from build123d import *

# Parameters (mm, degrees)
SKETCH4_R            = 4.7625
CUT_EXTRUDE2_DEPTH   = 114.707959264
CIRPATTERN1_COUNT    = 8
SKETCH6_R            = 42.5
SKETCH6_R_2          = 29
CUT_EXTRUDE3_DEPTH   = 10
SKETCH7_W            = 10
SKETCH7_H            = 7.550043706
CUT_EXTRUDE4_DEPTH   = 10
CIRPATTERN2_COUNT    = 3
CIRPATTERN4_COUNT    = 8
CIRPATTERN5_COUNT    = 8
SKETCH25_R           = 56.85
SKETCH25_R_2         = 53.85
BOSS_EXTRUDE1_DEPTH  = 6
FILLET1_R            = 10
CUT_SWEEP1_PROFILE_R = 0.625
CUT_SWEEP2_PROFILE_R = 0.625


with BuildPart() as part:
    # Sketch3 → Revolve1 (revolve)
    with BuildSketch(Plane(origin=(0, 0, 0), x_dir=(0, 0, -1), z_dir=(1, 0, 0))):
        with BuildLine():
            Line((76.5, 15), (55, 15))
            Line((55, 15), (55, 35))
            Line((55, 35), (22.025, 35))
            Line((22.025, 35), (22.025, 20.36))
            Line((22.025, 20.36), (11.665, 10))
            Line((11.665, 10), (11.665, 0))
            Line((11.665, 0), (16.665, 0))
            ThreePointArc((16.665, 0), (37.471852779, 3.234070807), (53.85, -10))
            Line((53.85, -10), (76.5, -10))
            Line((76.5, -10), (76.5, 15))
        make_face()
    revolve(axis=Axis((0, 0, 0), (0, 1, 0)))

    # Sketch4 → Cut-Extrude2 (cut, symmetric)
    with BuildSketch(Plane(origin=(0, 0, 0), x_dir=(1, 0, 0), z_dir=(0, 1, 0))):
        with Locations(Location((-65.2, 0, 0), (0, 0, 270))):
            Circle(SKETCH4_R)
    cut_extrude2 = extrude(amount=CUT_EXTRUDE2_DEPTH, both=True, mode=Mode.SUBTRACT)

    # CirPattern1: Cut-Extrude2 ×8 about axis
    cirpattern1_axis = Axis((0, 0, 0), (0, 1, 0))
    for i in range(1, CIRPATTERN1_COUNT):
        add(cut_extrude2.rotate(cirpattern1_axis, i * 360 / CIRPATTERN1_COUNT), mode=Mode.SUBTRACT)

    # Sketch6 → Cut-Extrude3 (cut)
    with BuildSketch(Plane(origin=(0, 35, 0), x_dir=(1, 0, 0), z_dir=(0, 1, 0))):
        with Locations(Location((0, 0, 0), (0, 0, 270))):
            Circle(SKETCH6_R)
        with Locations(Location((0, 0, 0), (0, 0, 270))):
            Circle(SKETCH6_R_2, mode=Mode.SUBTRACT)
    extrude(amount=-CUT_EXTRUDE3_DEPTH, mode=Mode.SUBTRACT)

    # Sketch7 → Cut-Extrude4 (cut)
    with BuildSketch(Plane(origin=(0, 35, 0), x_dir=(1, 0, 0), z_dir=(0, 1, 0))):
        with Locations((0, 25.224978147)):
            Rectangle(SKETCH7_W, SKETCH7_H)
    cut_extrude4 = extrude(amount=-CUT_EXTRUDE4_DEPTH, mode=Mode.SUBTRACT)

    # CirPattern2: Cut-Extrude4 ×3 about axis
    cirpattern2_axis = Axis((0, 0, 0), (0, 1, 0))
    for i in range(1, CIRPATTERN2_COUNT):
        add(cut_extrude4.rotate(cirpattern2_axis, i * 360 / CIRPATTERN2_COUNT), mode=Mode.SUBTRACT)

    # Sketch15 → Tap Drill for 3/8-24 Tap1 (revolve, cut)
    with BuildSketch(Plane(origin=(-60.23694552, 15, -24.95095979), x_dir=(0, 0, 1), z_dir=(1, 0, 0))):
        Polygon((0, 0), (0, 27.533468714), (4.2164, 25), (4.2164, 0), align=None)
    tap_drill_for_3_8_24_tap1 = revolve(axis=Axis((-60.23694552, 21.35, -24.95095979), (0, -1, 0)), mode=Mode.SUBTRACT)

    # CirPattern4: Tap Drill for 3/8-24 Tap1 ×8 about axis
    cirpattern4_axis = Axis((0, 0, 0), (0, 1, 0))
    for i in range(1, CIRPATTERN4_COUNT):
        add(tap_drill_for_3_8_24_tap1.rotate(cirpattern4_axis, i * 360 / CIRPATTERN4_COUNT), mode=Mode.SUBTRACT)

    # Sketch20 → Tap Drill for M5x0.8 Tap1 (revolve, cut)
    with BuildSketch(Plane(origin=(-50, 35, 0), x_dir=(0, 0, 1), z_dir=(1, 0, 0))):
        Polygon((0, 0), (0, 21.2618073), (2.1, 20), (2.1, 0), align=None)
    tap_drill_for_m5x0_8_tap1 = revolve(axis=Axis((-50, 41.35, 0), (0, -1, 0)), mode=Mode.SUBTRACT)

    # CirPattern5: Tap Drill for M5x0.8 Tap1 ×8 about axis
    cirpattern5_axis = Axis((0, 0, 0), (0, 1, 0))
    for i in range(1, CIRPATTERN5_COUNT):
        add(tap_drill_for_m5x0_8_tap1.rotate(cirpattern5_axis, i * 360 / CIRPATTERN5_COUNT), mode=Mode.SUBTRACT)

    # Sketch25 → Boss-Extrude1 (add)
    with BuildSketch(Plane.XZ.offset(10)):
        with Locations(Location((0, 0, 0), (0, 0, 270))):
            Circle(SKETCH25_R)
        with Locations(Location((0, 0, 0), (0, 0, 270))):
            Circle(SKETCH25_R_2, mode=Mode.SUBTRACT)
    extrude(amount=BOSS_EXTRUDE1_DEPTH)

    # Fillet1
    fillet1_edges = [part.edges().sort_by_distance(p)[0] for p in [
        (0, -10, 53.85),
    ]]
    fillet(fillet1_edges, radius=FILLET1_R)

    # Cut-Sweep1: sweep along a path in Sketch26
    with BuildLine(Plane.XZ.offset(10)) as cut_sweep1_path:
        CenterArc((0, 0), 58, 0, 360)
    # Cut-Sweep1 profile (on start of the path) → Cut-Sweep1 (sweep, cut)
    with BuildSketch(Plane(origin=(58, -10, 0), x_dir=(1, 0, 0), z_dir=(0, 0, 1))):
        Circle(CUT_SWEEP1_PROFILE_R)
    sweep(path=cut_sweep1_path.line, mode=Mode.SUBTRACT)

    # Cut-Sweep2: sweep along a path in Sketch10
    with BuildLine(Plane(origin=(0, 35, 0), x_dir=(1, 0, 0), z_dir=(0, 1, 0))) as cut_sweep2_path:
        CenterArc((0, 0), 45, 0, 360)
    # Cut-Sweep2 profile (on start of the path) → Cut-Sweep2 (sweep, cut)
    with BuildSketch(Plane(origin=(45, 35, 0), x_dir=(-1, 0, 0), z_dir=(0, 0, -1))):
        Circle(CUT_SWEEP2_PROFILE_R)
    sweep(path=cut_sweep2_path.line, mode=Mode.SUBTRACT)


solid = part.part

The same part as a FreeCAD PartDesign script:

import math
import FreeCAD as App
import Part
import Sketcher
from FreeCAD import Vector
Q = App.Units.Quantity


def edges_at(feature, points):
    """Names of the edges that pass closest to the given points."""
    edges = feature.Shape.Edges
    near = lambda p: min(range(len(edges)), key=lambda i: edges[i].distToShape(Part.Vertex(*p))[0])
    return sorted({f"Edge{near(p) + 1}" for p in points})


def add_polygon(sketch, points):
    """Adds a closed chain of lines whose ends are joined by coincident constraints."""
    first, n = sketch.GeometryCount, len(points)
    for a, b in zip(points, points[1:] + points[:1]):
        sketch.addGeometry(Part.LineSegment(App.Vector(*a, 0), App.Vector(*b, 0)), False)
    for i in range(n):
        sketch.addConstraint(Sketcher.Constraint("Coincident", first + i, 2, first + (i + 1) % n, 1))

doc = App.newDocument("Part")
params = doc.addObject("Spreadsheet::Sheet", "Params")
for row, (alias, value) in enumerate([
    ("sketch1_radius", "26 mm"),
    ("sketch1_width", "20 mm"),
    ("sketch1_width2", "10 mm"),
    ("sketch1_width3", "25 mm"),
    ("sketch1_height", "5 mm"),
    ("revolution_angle", "360 deg"),
    ("pocket1_length", "229.415919 mm"),
    ("sketch3_diameter", "85 mm"),
    ("sketch3_diameter2", "58 mm"),
    ("pocket2_length", "10 mm"),
    ("sketch4_width", "10 mm"),
    ("pocket3_length", "10 mm"),
    ("sketch5_width", "25 mm"),
    ("groove_angle", "360 deg"),
    ("sketch6_width", "20 mm"),
    ("sketch6_height", "2.1 mm"),
    ("groove2_angle", "360 deg"),
    ("sketch7_diameter", "113.7 mm"),
    ("sketch7_diameter2", "107.7 mm"),
    ("pad1_length", "6 mm"),
    ("fillet_radius", "10 mm"),
    ("sketch8_diameter", "1.25 mm"),
    ("sketch9_diameter", "116 mm"),
    ("sketch10_diameter", "1.25 mm"),
    ("sketch11_diameter", "90 mm"),
], start=1):
    params.set(f"A{row}", alias)
    params.set(f"B{row}", "=" + value)
    params.setAlias(f"B{row}", alias)

body = doc.addObject("PartDesign::Body", "Body")

sketch1 = body.newObject("Sketcher::SketchObject", "Sketch")
sketch1.AttachmentSupport = (doc.getObject("YZ_Plane"), [""])
sketch1.MapMode = "FlatFace"
sketch1.addGeometry([
    Part.LineSegment(Vector(15, -76, 0), Vector(15, -55, 0)),
    Part.LineSegment(Vector(15, -55, 0), Vector(35, -55, 0)),
    Part.LineSegment(Vector(35, -55, 0), Vector(35, -22, 0)),
    Part.LineSegment(Vector(35, -22, 0), Vector(20, -22, 0)),
    Part.LineSegment(Vector(20, -22, 0), Vector(10, -12, 0)),
    Part.LineSegment(Vector(10, -12, 0), Vector(0, -12, 0)),
    Part.LineSegment(Vector(0, -12, 0), Vector(0, -17, 0)),
    Part.ArcOfCircle(Part.Circle(Vector(-22, -31, 0), Vector(0, 0, 1), 26), math.radians(-63), math.radians(33)),
    Part.LineSegment(Vector(-10, -54, 0), Vector(-10, -76, 0)),
    Part.LineSegment(Vector(-10, -76, 0), Vector(15, -76, 0)),
], False)
sketch1.addConstraint([
    Sketcher.Constraint("Coincident", 0, 2, 1, 1),
    Sketcher.Constraint("Coincident", 1, 2, 2, 1),
    Sketcher.Constraint("Coincident", 2, 2, 3, 1),
    Sketcher.Constraint("Coincident", 3, 2, 4, 1),
    Sketcher.Constraint("Coincident", 4, 2, 5, 1),
    Sketcher.Constraint("Coincident", 5, 2, 6, 1),
    Sketcher.Constraint("Coincident", 6, 2, 7, 2),
    Sketcher.Constraint("Coincident", 7, 1, 8, 1),
    Sketcher.Constraint("Coincident", 8, 2, 9, 1),
    Sketcher.Constraint("Coincident", 9, 2, 0, 1),
    Sketcher.Constraint("Vertical", 0),
    Sketcher.Constraint("Horizontal", 1),
    Sketcher.Constraint("Vertical", 2),
    Sketcher.Constraint("Horizontal", 3),
    Sketcher.Constraint("Horizontal", 5),
    Sketcher.Constraint("Vertical", 6),
    Sketcher.Constraint("Vertical", 8),
    Sketcher.Constraint("Horizontal", 9),
    Sketcher.Constraint("PointOnObject", 5, 2, -2),
    Sketcher.Constraint("Radius", 7, 26.0),
    Sketcher.Constraint("DistanceX", 1, 1, 1, 2, 20.0),
    Sketcher.Constraint("DistanceX", 5, 2, 5, 1, 10.0),
    Sketcher.Constraint("DistanceX", 9, 1, 9, 2, 25.0),
    Sketcher.Constraint("DistanceY", 6, 2, 6, 1, 5.0),
    Sketcher.Constraint("Angle", 4, Q("135 deg")),
    Sketcher.Constraint("DistanceY", 0, 1, 0, 2, 21.5),
    Sketcher.Constraint("DistanceX", -1, 1, 0, 2, 15.0),
    Sketcher.Constraint("DistanceY", 0, 2, -1, 1, 55.0),
    Sketcher.Constraint("DistanceX", 3, 2, 3, 1, 14.64),
    Sketcher.Constraint("DistanceY", 8, 2, 8, 1, 22.65),
    Sketcher.Constraint("DistanceY", 2, 1, 2, 2, 32.975),
])
sketch1.setExpression("Constraints[19]", "Params.sketch1_radius")
sketch1.setExpression("Constraints[20]", "Params.sketch1_width")
sketch1.setExpression("Constraints[21]", "Params.sketch1_width2")
sketch1.setExpression("Constraints[22]", "Params.sketch1_width3")
sketch1.setExpression("Constraints[23]", "Params.sketch1_height")
revolution = body.newObject("PartDesign::Revolution", "Revolution")
revolution.Profile = sketch1
revolution.ReferenceAxis = (sketch1, ["H_Axis"])
revolution.setExpression("Angle", "Params.revolution_angle")

sketch2 = body.newObject("Sketcher::SketchObject", "Sketch001")
sketch2.AttachmentSupport = (doc.getObject("XZ_Plane"), [""])
sketch2.MapMode = "FlatFace"
sketch2.addGeometry(Part.Circle(Vector(-65.2, 0, 0), Vector(0, 0, 1), 4.8), False)
sketch2.addConstraint([
    Sketcher.Constraint("PointOnObject", 0, 3, -1),
    Sketcher.Constraint("Diameter", 0, 9.525),
    Sketcher.Constraint("DistanceX", 0, 3, -1, 1, 65.2),
])
pocket1 = body.newObject("PartDesign::Pocket", "Pocket")
pocket1.Profile = sketch2
pocket1.setExpression("Length", "Params.pocket1_length")
pocket1.Midplane = True
doc.recompute()

polarpattern = body.newObject("PartDesign::PolarPattern", "PolarPattern")
polarpattern.Originals = [pocket1]
polarpattern.Axis = (doc.getObject("Y_Axis"), [""])
polarpattern.Angle = 360
polarpattern.Occurrences = 8
body.Tip = polarpattern

sketch3 = body.newObject("Sketcher::SketchObject", "Sketch002")
sketch3.AttachmentSupport = (doc.getObject("XZ_Plane"), [""])
sketch3.MapMode = "FlatFace"
sketch3.AttachmentOffset = App.Placement(Vector(0, 0, -35), App.Rotation())
sketch3.addGeometry([
    Part.Circle(Vector(0, 0, 0), Vector(0, 0, 1), 42),
    Part.Circle(Vector(0, 0, 0), Vector(0, 0, 1), 29),
], False)
sketch3.addConstraint([
    Sketcher.Constraint("Coincident", 0, 3, -1, 1),
    Sketcher.Constraint("Coincident", 1, 3, -1, 1),
    Sketcher.Constraint("Diameter", 0, 85.0),
    Sketcher.Constraint("Diameter", 1, 58.0),
])
sketch3.setExpression("Constraints[2]", "Params.sketch3_diameter")
sketch3.setExpression("Constraints[3]", "Params.sketch3_diameter2")
pocket2 = body.newObject("PartDesign::Pocket", "Pocket001")
pocket2.Profile = sketch3
pocket2.setExpression("Length", "Params.pocket2_length")
pocket2.Reversed = True

sketch4 = body.newObject("Sketcher::SketchObject", "Sketch003")
sketch4.AttachmentSupport = (doc.getObject("XZ_Plane"), [""])
sketch4.MapMode = "FlatFace"
sketch4.AttachmentOffset = App.Placement(Vector(0, 0, -35), App.Rotation())
add_polygon(sketch4, [(-5, -29), (-5, -21), (5, -21), (5, -29)])
sketch4.addConstraint([
    Sketcher.Constraint("Vertical", 0),
    Sketcher.Constraint("Horizontal", 1),
    Sketcher.Constraint("Vertical", 2),
    Sketcher.Constraint("Horizontal", 3),
    Sketcher.Constraint("DistanceX", 1, 1, 1, 2, 10.0),
    Sketcher.Constraint("DistanceX", 0, 2, -1, 1, 5.0),
    Sketcher.Constraint("DistanceY", 2, 2, -1, 1, 29.0),
    Sketcher.Constraint("DistanceY", 0, 1, 0, 2, 7.550044),
])
sketch4.setExpression("Constraints[8]", "Params.sketch4_width")
pocket3 = body.newObject("PartDesign::Pocket", "Pocket002")
pocket3.Profile = sketch4
pocket3.setExpression("Length", "Params.pocket3_length")
pocket3.Reversed = True
doc.recompute()

polarpattern2 = body.newObject("PartDesign::PolarPattern", "PolarPattern001")
polarpattern2.Originals = [pocket3]
polarpattern2.Axis = (doc.getObject("Y_Axis"), [""])
polarpattern2.Angle = 360
polarpattern2.Occurrences = 3
body.Tip = polarpattern2

sketch5 = body.newObject("Sketcher::SketchObject", "Sketch004")
sketch5.AttachmentSupport = (doc.getObject("YZ_Plane"), [""])
sketch5.MapMode = "FlatFace"
sketch5.AttachmentOffset = App.Placement(Vector(0, 0, -60.236946), App.Rotation())
add_polygon(sketch5, [(-12.5, -25), (15, -25), (15, -20.7), (-10, -20.7)])
sketch5.addGeometry(Part.LineSegment(Vector(15, -25, 0), Vector(-12.5, -25, 0)), True)
sketch5.addConstraint([
    Sketcher.Constraint("Horizontal", 0),
    Sketcher.Constraint("Vertical", 1),
    Sketcher.Constraint("Horizontal", 2),
    Sketcher.Constraint("Horizontal", 4),
    Sketcher.Constraint("Coincident", 4, 1, 0, 2),
    Sketcher.Constraint("Equal", 0, 4),
    Sketcher.Constraint("DistanceX", 2, 2, 2, 1, 25.0),
    Sketcher.Constraint("Angle", 3, Q("-121 deg")),
    Sketcher.Constraint("DistanceX", -1, 1, 0, 2, 15.0),
    Sketcher.Constraint("DistanceY", 1, 1, 1, 2, 4.2164),
    Sketcher.Constraint("DistanceY", 0, 2, -1, 1, 24.95096),
])
sketch5.setExpression("Constraints[10]", "Params.sketch5_width")
groove = body.newObject("PartDesign::Groove", "Groove")
groove.Profile = sketch5
groove.ReferenceAxis = (sketch5, ["Axis0"])
groove.setExpression("Angle", "Params.groove_angle")
doc.recompute()

polarpattern3 = body.newObject("PartDesign::PolarPattern", "PolarPattern002")
polarpattern3.Originals = [groove]
polarpattern3.Axis = (doc.getObject("Y_Axis"), [""])
polarpattern3.Angle = 360
polarpattern3.Occurrences = 8
body.Tip = polarpattern3

sketch6 = body.newObject("Sketcher::SketchObject", "Sketch005")
sketch6.AttachmentSupport = (doc.getObject("YZ_Plane"), [""])
sketch6.MapMode = "FlatFace"
sketch6.AttachmentOffset = App.Placement(Vector(0, 0, -50), App.Rotation())
add_polygon(sketch6, [(13.7, 0), (35, 0), (35, 2.1), (15, 2.1)])
sketch6.addConstraint([
    Sketcher.Constraint("Horizontal", 0),
    Sketcher.Constraint("Vertical", 1),
    Sketcher.Constraint("Horizontal", 2),
    Sketcher.Constraint("PointOnObject", 0, 2, -1),
    Sketcher.Constraint("DistanceX", 2, 2, 2, 1, 20.0),
    Sketcher.Constraint("Angle", 3, Q("-121 deg")),
    Sketcher.Constraint("DistanceY", 1, 1, 1, 2, 2.1),
    Sketcher.Constraint("DistanceX", -1, 1, 0, 2, 35.0),
])
sketch6.setExpression("Constraints[8]", "Params.sketch6_width")
sketch6.setExpression("Constraints[10]", "Params.sketch6_height")
groove2 = body.newObject("PartDesign::Groove", "Groove001")
groove2.Profile = sketch6
groove2.ReferenceAxis = (sketch6, ["H_Axis"])
groove2.setExpression("Angle", "Params.groove2_angle")
doc.recompute()

polarpattern4 = body.newObject("PartDesign::PolarPattern", "PolarPattern003")
polarpattern4.Originals = [groove2]
polarpattern4.Axis = (doc.getObject("Y_Axis"), [""])
polarpattern4.Angle = 360
polarpattern4.Occurrences = 8
body.Tip = polarpattern4

sketch7 = body.newObject("Sketcher::SketchObject", "Sketch006")
sketch7.AttachmentSupport = (doc.getObject("XZ_Plane"), [""])
sketch7.MapMode = "FlatFace"
sketch7.AttachmentOffset = App.Placement(Vector(0, 0, 10), App.Rotation())
sketch7.addGeometry([
    Part.Circle(Vector(0, 0, 0), Vector(0, 0, 1), 57),
    Part.Circle(Vector(0, 0, 0), Vector(0, 0, 1), 54),
], False)
sketch7.addConstraint([
    Sketcher.Constraint("Coincident", 0, 3, -1, 1),
    Sketcher.Constraint("Coincident", 1, 3, -1, 1),
    Sketcher.Constraint("Diameter", 0, 113.7),
    Sketcher.Constraint("Diameter", 1, 107.7),
])
sketch7.setExpression("Constraints[2]", "Params.sketch7_diameter")
sketch7.setExpression("Constraints[3]", "Params.sketch7_diameter2")
pad1 = body.newObject("PartDesign::Pad", "Pad")
pad1.Profile = sketch7
pad1.setExpression("Length", "Params.pad1_length")
doc.recompute()

fillet = body.newObject("PartDesign::Fillet", "Fillet")
fillet.Base = (pad1, edges_at(pad1, [(0, -10, 53.85)]))
fillet.setExpression("Radius", "Params.fillet_radius")

sketch8 = body.newObject("Sketcher::SketchObject", "Sketch007")
sketch8.AttachmentSupport = (doc.getObject("XY_Plane"), [""])
sketch8.MapMode = "FlatFace"
sketch8.addGeometry(Part.Circle(Vector(58, -10, 0), Vector(0, 0, 1), 0.6), False)
sketch8.addConstraint([
    Sketcher.Constraint("Diameter", 0, 1.25),
    Sketcher.Constraint("DistanceX", -1, 1, 0, 3, 58.0),
    Sketcher.Constraint("DistanceY", 0, 3, -1, 1, 10.0),
])
sketch8.setExpression("Constraints[0]", "Params.sketch8_diameter")

sketch9 = body.newObject("Sketcher::SketchObject", "Sketch008")
sketch9.AttachmentSupport = (doc.getObject("XZ_Plane"), [""])
sketch9.MapMode = "FlatFace"
sketch9.AttachmentOffset = App.Placement(Vector(0, 0, 10), App.Rotation())
sketch9.addGeometry(Part.Circle(Vector(0, 0, 0), Vector(0, 0, 1), 58), False)
sketch9.addConstraint([
    Sketcher.Constraint("Coincident", 0, 3, -1, 1),
    Sketcher.Constraint("Diameter", 0, 116.0),
])
sketch9.setExpression("Constraints[1]", "Params.sketch9_diameter")
doc.recompute()

subtractivepipe = body.newObject("PartDesign::SubtractivePipe", "SubtractivePipe")
subtractivepipe.Profile = sketch8
subtractivepipe.Spine = (sketch9, ["Edge1"])

sketch10 = body.newObject("Sketcher::SketchObject", "Sketch009")
sketch10.AttachmentSupport = (doc.getObject("XY_Plane"), [""])
sketch10.MapMode = "FlatFace"
sketch10.addGeometry(Part.Circle(Vector(45, 35, 0), Vector(0, 0, 1), 0.6), False)
sketch10.addConstraint([
    Sketcher.Constraint("Diameter", 0, 1.25),
    Sketcher.Constraint("DistanceX", -1, 1, 0, 3, 45.0),
    Sketcher.Constraint("DistanceY", -1, 1, 0, 3, 35.0),
])
sketch10.setExpression("Constraints[0]", "Params.sketch10_diameter")

sketch11 = body.newObject("Sketcher::SketchObject", "Sketch010")
sketch11.AttachmentSupport = (doc.getObject("XZ_Plane"), [""])
sketch11.MapMode = "FlatFace"
sketch11.AttachmentOffset = App.Placement(Vector(0, 0, -35), App.Rotation())
sketch11.addGeometry(Part.Circle(Vector(0, 0, 0), Vector(0, 0, 1), 45), False)
sketch11.addConstraint([
    Sketcher.Constraint("Coincident", 0, 3, -1, 1),
    Sketcher.Constraint("Diameter", 0, 90.0),
])
sketch11.setExpression("Constraints[1]", "Params.sketch11_diameter")
doc.recompute()

subtractivepipe2 = body.newObject("PartDesign::SubtractivePipe", "SubtractivePipe001")
subtractivepipe2.Profile = sketch10
subtractivepipe2.Spine = (sketch11, ["Edge1"])

doc.recompute()
